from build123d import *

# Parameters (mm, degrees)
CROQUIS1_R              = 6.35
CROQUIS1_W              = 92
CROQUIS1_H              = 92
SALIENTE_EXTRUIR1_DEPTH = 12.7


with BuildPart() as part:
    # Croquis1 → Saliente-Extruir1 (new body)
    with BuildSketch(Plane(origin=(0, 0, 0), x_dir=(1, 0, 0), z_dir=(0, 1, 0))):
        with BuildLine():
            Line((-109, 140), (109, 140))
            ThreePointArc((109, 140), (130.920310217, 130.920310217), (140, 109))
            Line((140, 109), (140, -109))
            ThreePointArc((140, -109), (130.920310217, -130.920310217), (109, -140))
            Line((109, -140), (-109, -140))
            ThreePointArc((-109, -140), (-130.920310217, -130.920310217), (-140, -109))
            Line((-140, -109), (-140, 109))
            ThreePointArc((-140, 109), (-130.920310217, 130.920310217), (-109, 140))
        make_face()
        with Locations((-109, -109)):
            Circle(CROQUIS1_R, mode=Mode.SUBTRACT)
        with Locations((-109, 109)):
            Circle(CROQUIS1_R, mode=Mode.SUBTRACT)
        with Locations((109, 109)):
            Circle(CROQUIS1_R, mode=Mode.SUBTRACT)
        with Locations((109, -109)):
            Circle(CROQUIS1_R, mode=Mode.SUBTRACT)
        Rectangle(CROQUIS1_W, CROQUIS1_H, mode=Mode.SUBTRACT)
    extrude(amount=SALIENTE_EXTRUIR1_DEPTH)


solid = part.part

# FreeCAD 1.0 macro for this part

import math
import FreeCAD as App
import Part
import Sketcher


def add_polygon(sketch, points):
    """Adds a closed chain of lines whose ends are joined by coincident constraints."""
    first, n = sketch.GeometryCount, len(points)
    for a, b in zip(points, points[1:] + points[:1]):
        sketch.addGeometry(Part.LineSegment(App.Vector(*a, 0), App.Vector(*b, 0)), False)
    for i in range(n):
        sketch.addConstraint(Sketcher.Constraint("Coincident", first + i, 2, first + (i + 1) % n, 1))

doc = App.newDocument("Part")
params = doc.addObject("Spreadsheet::Sheet", "Params")
for row, (alias, value) in enumerate([
    ("sketch1_radius", "31 mm"),
    ("sketch1_diameter", "12.7 mm"),
    ("sketch1_width", "218 mm"),
    ("sketch1_width2", "92 mm"),
    ("pad1_length", "12.7 mm"),
], start=1):
    params.set(f"A{row}", alias)
    params.set(f"B{row}", "=" + value)
    params.setAlias(f"B{row}", alias)

body = doc.addObject("PartDesign::Body", "Body")

sketch1 = body.newObject("Sketcher::SketchObject", "Sketch")
sketch1.AttachmentSupport = (doc.getObject("XZ_Plane"), [""])
sketch1.MapMode = "FlatFace"
sketch1.addGeometry(Part.LineSegment(App.Vector(109, -140, 0), App.Vector(-109, -140, 0)), False)
sketch1.addGeometry(Part.ArcOfCircle(Part.Circle(App.Vector(-109, -109, 0), App.Vector(0, 0, 1), 31), math.radians(180), math.radians(270)), False)
sketch1.addGeometry(Part.LineSegment(App.Vector(-140, -109, 0), App.Vector(-140, 109, 0)), False)
sketch1.addGeometry(Part.ArcOfCircle(Part.Circle(App.Vector(-109, 109, 0), App.Vector(0, 0, 1), 31), math.radians(90), math.radians(180)), False)
sketch1.addGeometry(Part.LineSegment(App.Vector(-109, 140, 0), App.Vector(109, 140, 0)), False)
sketch1.addGeometry(Part.ArcOfCircle(Part.Circle(App.Vector(109, 109, 0), App.Vector(0, 0, 1), 31), math.radians(0), math.radians(90)), False)
sketch1.addGeometry(Part.LineSegment(App.Vector(140, 109, 0), App.Vector(140, -109, 0)), False)
sketch1.addGeometry(Part.ArcOfCircle(Part.Circle(App.Vector(109, -109, 0), App.Vector(0, 0, 1), 31), math.radians(-90), math.radians(0)), False)
sketch1.addGeometry(Part.Circle(App.Vector(109, 109, 0), App.Vector(0, 0, 1), 6), False)
add_polygon(sketch1, [(-46, 46), (-46, -46), (46, -46), (46, 46)])
sketch1.addGeometry(Part.Circle(App.Vector(-109, 109, 0), App.Vector(0, 0, 1), 6), False)
sketch1.addGeometry(Part.Circle(App.Vector(109, -109, 0), App.Vector(0, 0, 1), 6), False)
sketch1.addGeometry(Part.Circle(App.Vector(-109, -109, 0), App.Vector(0, 0, 1), 6), False)
sketch1.addConstraint(Sketcher.Constraint("Tangent", 0, 2, 1, 2))
sketch1.addConstraint(Sketcher.Constraint("Tangent", 1, 1, 2, 1))
sketch1.addConstraint(Sketcher.Constraint("Tangent", 2, 2, 3, 2))
sketch1.addConstraint(Sketcher.Constraint("Tangent", 3, 1, 4, 1))
sketch1.addConstraint(Sketcher.Constraint("Tangent", 4, 2, 5, 2))
sketch1.addConstraint(Sketcher.Constraint("Tangent", 5, 1, 6, 1))
sketch1.addConstraint(Sketcher.Constraint("Tangent", 6, 2, 7, 2))
sketch1.addConstraint(Sketcher.Constraint("Tangent", 7, 1, 0, 1))
sketch1.addConstraint(Sketcher.Constraint("Horizontal", 0))
sketch1.addConstraint(Sketcher.Constraint("Vertical", 2))
sketch1.addConstraint(Sketcher.Constraint("Horizontal", 4))
sketch1.addConstraint(Sketcher.Constraint("Vertical", 6))
sketch1.addConstraint(Sketcher.Constraint("Vertical", 9))
sketch1.addConstraint(Sketcher.Constraint("Horizontal", 10))
sketch1.addConstraint(Sketcher.Constraint("Vertical", 11))
sketch1.addConstraint(Sketcher.Constraint("Horizontal", 12))
sketch1.addConstraint(Sketcher.Constraint("Coincident", 8, 3, 5, 3))
sketch1.addConstraint(Sketcher.Constraint("Coincident", 13, 3, 3, 3))
sketch1.addConstraint(Sketcher.Constraint("Coincident", 14, 3, 7, 3))
sketch1.addConstraint(Sketcher.Constraint("Coincident", 15, 3, 1, 3))
sketch1.addConstraint(Sketcher.Constraint("Equal", 1, 3))
sketch1.addConstraint(Sketcher.Constraint("Equal", 3, 5))
sketch1.addConstraint(Sketcher.Constraint("Equal", 5, 7))
sketch1.addConstraint(Sketcher.Constraint("Equal", 8, 13))
sketch1.addConstraint(Sketcher.Constraint("Equal", 13, 14))
sketch1.addConstraint(Sketcher.Constraint("Equal", 14, 15))
sketch1.addConstraint(Sketcher.Constraint("Symmetric", 1, 3, 5, 3, -1, 1))
sketch1.addConstraint(Sketcher.Constraint("Symmetric", 9, 2, 11, 2, -1, 1))
sketch1.addConstraint(Sketcher.Constraint("Equal", 4, 2))
sketch1.addConstraint(Sketcher.Constraint("Equal", 12, 9))
sketch1.addConstraint(Sketcher.Constraint("Radius", 1, 31.0))
sketch1.addConstraint(Sketcher.Constraint("Diameter", 8, 12.7))
sketch1.addConstraint(Sketcher.Constraint("DistanceX", 0, 2, 0, 1, 218.0))
sketch1.addConstraint(Sketcher.Constraint("DistanceX", 10, 1, 10, 2, 92.0))
sketch1.setExpression("Constraints[34]", "Params.sketch1_radius")
sketch1.setExpression("Constraints[35]", "Params.sketch1_diameter")
sketch1.setExpression("Constraints[36]", "Params.sketch1_width")
sketch1.setExpression("Constraints[37]", "Params.sketch1_width2")
pad1 = body.newObject("PartDesign::Pad", "Pad")
pad1.Profile = sketch1
pad1.setExpression("Length", "Params.pad1_length")
pad1.Reversed = True

doc.recompute()
